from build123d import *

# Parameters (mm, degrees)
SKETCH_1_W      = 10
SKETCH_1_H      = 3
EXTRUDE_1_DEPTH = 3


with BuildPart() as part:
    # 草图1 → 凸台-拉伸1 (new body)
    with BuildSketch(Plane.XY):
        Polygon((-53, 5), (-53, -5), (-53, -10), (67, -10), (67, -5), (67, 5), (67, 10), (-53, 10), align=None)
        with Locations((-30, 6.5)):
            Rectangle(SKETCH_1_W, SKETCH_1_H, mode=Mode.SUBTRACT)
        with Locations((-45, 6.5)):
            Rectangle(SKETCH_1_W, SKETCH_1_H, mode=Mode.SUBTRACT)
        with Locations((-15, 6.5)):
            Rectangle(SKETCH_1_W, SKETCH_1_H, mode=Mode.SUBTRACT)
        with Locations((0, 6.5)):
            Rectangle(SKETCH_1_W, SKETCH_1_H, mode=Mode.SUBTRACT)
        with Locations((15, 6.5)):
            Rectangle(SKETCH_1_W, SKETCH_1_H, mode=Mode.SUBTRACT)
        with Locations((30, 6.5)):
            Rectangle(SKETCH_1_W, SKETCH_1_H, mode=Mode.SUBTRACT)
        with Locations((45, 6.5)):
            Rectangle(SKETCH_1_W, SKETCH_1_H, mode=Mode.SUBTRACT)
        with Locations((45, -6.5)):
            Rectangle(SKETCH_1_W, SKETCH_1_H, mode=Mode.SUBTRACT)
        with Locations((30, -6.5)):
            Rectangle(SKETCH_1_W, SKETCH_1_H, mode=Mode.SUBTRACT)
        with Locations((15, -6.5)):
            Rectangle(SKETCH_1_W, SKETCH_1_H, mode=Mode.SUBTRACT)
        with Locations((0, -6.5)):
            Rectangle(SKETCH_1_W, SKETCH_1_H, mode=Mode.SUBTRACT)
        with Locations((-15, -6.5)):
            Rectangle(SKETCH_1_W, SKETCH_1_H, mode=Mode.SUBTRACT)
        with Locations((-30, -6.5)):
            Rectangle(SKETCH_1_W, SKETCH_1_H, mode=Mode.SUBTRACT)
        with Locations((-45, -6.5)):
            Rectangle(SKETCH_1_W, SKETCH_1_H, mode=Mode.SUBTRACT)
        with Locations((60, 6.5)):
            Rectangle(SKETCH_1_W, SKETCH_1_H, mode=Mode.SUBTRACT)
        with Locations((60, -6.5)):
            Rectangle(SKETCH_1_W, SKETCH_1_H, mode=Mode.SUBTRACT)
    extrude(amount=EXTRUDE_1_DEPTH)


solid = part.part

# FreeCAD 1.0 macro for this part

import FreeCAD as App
import Part
import Sketcher
from FreeCAD import Vector
Q = App.Units.Quantity

doc = App.newDocument("Part")
body = doc.addObject("PartDesign::Body", "Body")

# Sketch on XY plane
sketch1 = body.newObject("Sketcher::SketchObject", "Sketch")
sketch1.AttachmentSupport = (doc.getObject("XY_Plane"), [""])
sketch1.MapMode = "FlatFace"
sketch1.addGeometry(Part.LineSegment(Vector(-53, -10, 0), Vector(67, -10, 0)), False)
sketch1.addGeometry(Part.LineSegment(Vector(67, -10, 0), Vector(67, 10, 0)), False)
sketch1.addGeometry(Part.LineSegment(Vector(67, 10, 0), Vector(-53, 10, 0)), False)
sketch1.addGeometry(Part.LineSegment(Vector(-53, 10, 0), Vector(-53, -10, 0)), False)
sketch1.addGeometry(Part.LineSegment(Vector(-40, -8, 0), Vector(-50, -8, 0)), False)
sketch1.addGeometry(Part.LineSegment(Vector(-50, -8, 0), Vector(-50, -5, 0)), False)
sketch1.addGeometry(Part.LineSegment(Vector(-50, -5, 0), Vector(-40, -5, 0)), False)
sketch1.addGeometry(Part.LineSegment(Vector(-40, -5, 0), Vector(-40, -8, 0)), False)
sketch1.addGeometry(Part.LineSegment(Vector(-25, -8, 0), Vector(-35, -8, 0)), False)
sketch1.addGeometry(Part.LineSegment(Vector(-35, -8, 0), Vector(-35, -5, 0)), False)
sketch1.addGeometry(Part.LineSegment(Vector(-35, -5, 0), Vector(-25, -5, 0)), False)
sketch1.addGeometry(Part.LineSegment(Vector(-25, -5, 0), Vector(-25, -8, 0)), False)
sketch1.addGeometry(Part.LineSegment(Vector(-10, -8, 0), Vector(-20, -8, 0)), False)
sketch1.addGeometry(Part.LineSegment(Vector(-20, -8, 0), Vector(-20, -5, 0)), False)
sketch1.addGeometry(Part.LineSegment(Vector(-20, -5, 0), Vector(-10, -5, 0)), False)
sketch1.addGeometry(Part.LineSegment(Vector(-10, -5, 0), Vector(-10, -8, 0)), False)
sketch1.addGeometry(Part.LineSegment(Vector(5, -8, 0), Vector(-5, -8, 0)), False)
sketch1.addGeometry(Part.LineSegment(Vector(-5, -8, 0), Vector(-5, -5, 0)), False)
sketch1.addGeometry(Part.LineSegment(Vector(-5, -5, 0), Vector(5, -5, 0)), False)
sketch1.addGeometry(Part.LineSegment(Vector(5, -5, 0), Vector(5, -8, 0)), False)
sketch1.addGeometry(Part.LineSegment(Vector(20, -8, 0), Vector(10, -8, 0)), False)
sketch1.addGeometry(Part.LineSegment(Vector(10, -8, 0), Vector(10, -5, 0)), False)
sketch1.addGeometry(Part.LineSegment(Vector(10, -5, 0), Vector(20, -5, 0)), False)
sketch1.addGeometry(Part.LineSegment(Vector(20, -5, 0), Vector(20, -8, 0)), False)
sketch1.addGeometry(Part.LineSegment(Vector(35, -8, 0), Vector(25, -8, 0)), False)
sketch1.addGeometry(Part.LineSegment(Vector(25, -8, 0), Vector(25, -5, 0)), False)
sketch1.addGeometry(Part.LineSegment(Vector(25, -5, 0), Vector(35, -5, 0)), False)
sketch1.addGeometry(Part.LineSegment(Vector(35, -5, 0), Vector(35, -8, 0)), False)
sketch1.addGeometry(Part.LineSegment(Vector(50, -8, 0), Vector(40, -8, 0)), False)
sketch1.addGeometry(Part.LineSegment(Vector(40, -8, 0), Vector(40, -5, 0)), False)
sketch1.addGeometry(Part.LineSegment(Vector(40, -5, 0), Vector(50, -5, 0)), False)
sketch1.addGeometry(Part.LineSegment(Vector(50, -5, 0), Vector(50, -8, 0)), False)
sketch1.addGeometry(Part.LineSegment(Vector(65, -8, 0), Vector(55, -8, 0)), False)
sketch1.addGeometry(Part.LineSegment(Vector(55, -8, 0), Vector(55, -5, 0)), False)
sketch1.addGeometry(Part.LineSegment(Vector(55, -5, 0), Vector(65, -5, 0)), False)
sketch1.addGeometry(Part.LineSegment(Vector(65, -5, 0), Vector(65, -8, 0)), False)
sketch1.addGeometry(Part.LineSegment(Vector(-40, 5, 0), Vector(-50, 5, 0)), False)
sketch1.addGeometry(Part.LineSegment(Vector(-50, 5, 0), Vector(-50, 8, 0)), False)
sketch1.addGeometry(Part.LineSegment(Vector(-50, 8, 0), Vector(-40, 8, 0)), False)
sketch1.addGeometry(Part.LineSegment(Vector(-40, 8, 0), Vector(-40, 5, 0)), False)
sketch1.addGeometry(Part.LineSegment(Vector(-25, 5, 0), Vector(-35, 5, 0)), False)
sketch1.addGeometry(Part.LineSegment(Vector(-35, 5, 0), Vector(-35, 8, 0)), False)
sketch1.addGeometry(Part.LineSegment(Vector(-35, 8, 0), Vector(-25, 8, 0)), False)
sketch1.addGeometry(Part.LineSegment(Vector(-25, 8, 0), Vector(-25, 5, 0)), False)
sketch1.addGeometry(Part.LineSegment(Vector(-10, 5, 0), Vector(-20, 5, 0)), False)
sketch1.addGeometry(Part.LineSegment(Vector(-20, 5, 0), Vector(-20, 8, 0)), False)
sketch1.addGeometry(Part.LineSegment(Vector(-20, 8, 0), Vector(-10, 8, 0)), False)
sketch1.addGeometry(Part.LineSegment(Vector(-10, 8, 0), Vector(-10, 5, 0)), False)
sketch1.addGeometry(Part.LineSegment(Vector(5, 5, 0), Vector(-5, 5, 0)), False)
sketch1.addGeometry(Part.LineSegment(Vector(-5, 5, 0), Vector(-5, 8, 0)), False)
sketch1.addGeometry(Part.LineSegment(Vector(-5, 8, 0), Vector(5, 8, 0)), False)
sketch1.addGeometry(Part.LineSegment(Vector(5, 8, 0), Vector(5, 5, 0)), False)
sketch1.addGeometry(Part.LineSegment(Vector(20, 5, 0), Vector(10, 5, 0)), False)
sketch1.addGeometry(Part.LineSegment(Vector(10, 5, 0), Vector(10, 8, 0)), False)
sketch1.addGeometry(Part.LineSegment(Vector(10, 8, 0), Vector(20, 8, 0)), False)
sketch1.addGeometry(Part.LineSegment(Vector(20, 8, 0), Vector(20, 5, 0)), False)
sketch1.addGeometry(Part.LineSegment(Vector(35, 5, 0), Vector(25, 5, 0)), False)
sketch1.addGeometry(Part.LineSegment(Vector(25, 5, 0), Vector(25, 8, 0)), False)
sketch1.addGeometry(Part.LineSegment(Vector(25, 8, 0), Vector(35, 8, 0)), False)
sketch1.addGeometry(Part.LineSegment(Vector(35, 8, 0), Vector(35, 5, 0)), False)
sketch1.addGeometry(Part.LineSegment(Vector(50, 5, 0), Vector(40, 5, 0)), False)
sketch1.addGeometry(Part.LineSegment(Vector(40, 5, 0), Vector(40, 8, 0)), False)
sketch1.addGeometry(Part.LineSegment(Vector(40, 8, 0), Vector(50, 8, 0)), False)
sketch1.addGeometry(Part.LineSegment(Vector(50, 8, 0), Vector(50, 5, 0)), False)
sketch1.addGeometry(Part.LineSegment(Vector(65, 5, 0), Vector(55, 5, 0)), False)
sketch1.addGeometry(Part.LineSegment(Vector(55, 5, 0), Vector(55, 8, 0)), False)
sketch1.addGeometry(Part.LineSegment(Vector(55, 8, 0), Vector(65, 8, 0)), False)
sketch1.addGeometry(Part.LineSegment(Vector(65, 8, 0), Vector(65, 5, 0)), False)
sketch1.addConstraint(Sketcher.Constraint("Coincident", 0, 2, 1, 1))
sketch1.addConstraint(Sketcher.Constraint("Coincident", 1, 2, 2, 1))
sketch1.addConstraint(Sketcher.Constraint("Coincident", 2, 2, 3, 1))
sketch1.addConstraint(Sketcher.Constraint("Coincident", 3, 2, 0, 1))
sketch1.addConstraint(Sketcher.Constraint("Coincident", 4, 2, 5, 1))
sketch1.addConstraint(Sketcher.Constraint("Coincident", 5, 2, 6, 1))
sketch1.addConstraint(Sketcher.Constraint("Coincident", 6, 2, 7, 1))
sketch1.addConstraint(Sketcher.Constraint("Coincident", 7, 2, 4, 1))
sketch1.addConstraint(Sketcher.Constraint("Coincident", 8, 2, 9, 1))
sketch1.addConstraint(Sketcher.Constraint("Coincident", 9, 2, 10, 1))
sketch1.addConstraint(Sketcher.Constraint("Coincident", 10, 2, 11, 1))
sketch1.addConstraint(Sketcher.Constraint("Coincident", 11, 2, 8, 1))
sketch1.addConstraint(Sketcher.Constraint("Coincident", 12, 2, 13, 1))
sketch1.addConstraint(Sketcher.Constraint("Coincident", 13, 2, 14, 1))
sketch1.addConstraint(Sketcher.Constraint("Coincident", 14, 2, 15, 1))
sketch1.addConstraint(Sketcher.Constraint("Coincident", 15, 2, 12, 1))
sketch1.addConstraint(Sketcher.Constraint("Coincident", 16, 2, 17, 1))
sketch1.addConstraint(Sketcher.Constraint("Coincident", 17, 2, 18, 1))
sketch1.addConstraint(Sketcher.Constraint("Coincident", 18, 2, 19, 1))
sketch1.addConstraint(Sketcher.Constraint("Coincident", 19, 2, 16, 1))
sketch1.addConstraint(Sketcher.Constraint("Coincident", 20, 2, 21, 1))
sketch1.addConstraint(Sketcher.Constraint("Coincident", 21, 2, 22, 1))
sketch1.addConstraint(Sketcher.Constraint("Coincident", 22, 2, 23, 1))
sketch1.addConstraint(Sketcher.Constraint("Coincident", 23, 2, 20, 1))
sketch1.addConstraint(Sketcher.Constraint("Coincident", 24, 2, 25, 1))
sketch1.addConstraint(Sketcher.Constraint("Coincident", 25, 2, 26, 1))
sketch1.addConstraint(Sketcher.Constraint("Coincident", 26, 2, 27, 1))
sketch1.addConstraint(Sketcher.Constraint("Coincident", 27, 2, 24, 1))
sketch1.addConstraint(Sketcher.Constraint("Coincident", 28, 2, 29, 1))
sketch1.addConstraint(Sketcher.Constraint("Coincident", 29, 2, 30, 1))
sketch1.addConstraint(Sketcher.Constraint("Coincident", 30, 2, 31, 1))
sketch1.addConstraint(Sketcher.Constraint("Coincident", 31, 2, 28, 1))
sketch1.addConstraint(Sketcher.Constraint("Coincident", 32, 2, 33, 1))
sketch1.addConstraint(Sketcher.Constraint("Coincident", 33, 2, 34, 1))
sketch1.addConstraint(Sketcher.Constraint("Coincident", 34, 2, 35, 1))
sketch1.addConstraint(Sketcher.Constraint("Coincident", 35, 2, 32, 1))
sketch1.addConstraint(Sketcher.Constraint("Coincident", 36, 2, 37, 1))
sketch1.addConstraint(Sketcher.Constraint("Coincident", 37, 2, 38, 1))
sketch1.addConstraint(Sketcher.Constraint("Coincident", 38, 2, 39, 1))
sketch1.addConstraint(Sketcher.Constraint("Coincident", 39, 2, 36, 1))
sketch1.addConstraint(Sketcher.Constraint("Coincident", 40, 2, 41, 1))
sketch1.addConstraint(Sketcher.Constraint("Coincident", 41, 2, 42, 1))
sketch1.addConstraint(Sketcher.Constraint("Coincident", 42, 2, 43, 1))
sketch1.addConstraint(Sketcher.Constraint("Coincident", 43, 2, 40, 1))
sketch1.addConstraint(Sketcher.Constraint("Coincident", 44, 2, 45, 1))
sketch1.addConstraint(Sketcher.Constraint("Coincident", 45, 2, 46, 1))
sketch1.addConstraint(Sketcher.Constraint("Coincident", 46, 2, 47, 1))
sketch1.addConstraint(Sketcher.Constraint("Coincident", 47, 2, 44, 1))
sketch1.addConstraint(Sketcher.Constraint("Coincident", 48, 2, 49, 1))
sketch1.addConstraint(Sketcher.Constraint("Coincident", 49, 2, 50, 1))
sketch1.addConstraint(Sketcher.Constraint("Coincident", 50, 2, 51, 1))
sketch1.addConstraint(Sketcher.Constraint("Coincident", 51, 2, 48, 1))
sketch1.addConstraint(Sketcher.Constraint("Coincident", 52, 2, 53, 1))
sketch1.addConstraint(Sketcher.Constraint("Coincident", 53, 2, 54, 1))
sketch1.addConstraint(Sketcher.Constraint("Coincident", 54, 2, 55, 1))
sketch1.addConstraint(Sketcher.Constraint("Coincident", 55, 2, 52, 1))
sketch1.addConstraint(Sketcher.Constraint("Coincident", 56, 2, 57, 1))
sketch1.addConstraint(Sketcher.Constraint("Coincident", 57, 2, 58, 1))
sketch1.addConstraint(Sketcher.Constraint("Coincident", 58, 2, 59, 1))
sketch1.addConstraint(Sketcher.Constraint("Coincident", 59, 2, 56, 1))
sketch1.addConstraint(Sketcher.Constraint("Coincident", 60, 2, 61, 1))
sketch1.addConstraint(Sketcher.Constraint("Coincident", 61, 2, 62, 1))
sketch1.addConstraint(Sketcher.Constraint("Coincident", 62, 2, 63, 1))
sketch1.addConstraint(Sketcher.Constraint("Coincident", 63, 2, 60, 1))
sketch1.addConstraint(Sketcher.Constraint("Coincident", 64, 2, 65, 1))
sketch1.addConstraint(Sketcher.Constraint("Coincident", 65, 2, 66, 1))
sketch1.addConstraint(Sketcher.Constraint("Coincident", 66, 2, 67, 1))
sketch1.addConstraint(Sketcher.Constraint("Coincident", 67, 2, 64, 1))
sketch1.addConstraint(Sketcher.Constraint("Horizontal", 0))
sketch1.addConstraint(Sketcher.Constraint("Vertical", 1))
sketch1.addConstraint(Sketcher.Constraint("Horizontal", 2))
sketch1.addConstraint(Sketcher.Constraint("Vertical", 3))
sketch1.addConstraint(Sketcher.Constraint("Horizontal", 4))
sketch1.addConstraint(Sketcher.Constraint("Vertical", 5))
sketch1.addConstraint(Sketcher.Constraint("Horizontal", 6))
sketch1.addConstraint(Sketcher.Constraint("Vertical", 7))
sketch1.addConstraint(Sketcher.Constraint("Horizontal", 8))
sketch1.addConstraint(Sketcher.Constraint("Vertical", 9))
sketch1.addConstraint(Sketcher.Constraint("Horizontal", 10))
sketch1.addConstraint(Sketcher.Constraint("Vertical", 11))
sketch1.addConstraint(Sketcher.Constraint("Horizontal", 12))
sketch1.addConstraint(Sketcher.Constraint("Vertical", 13))
sketch1.addConstraint(Sketcher.Constraint("Horizontal", 14))
sketch1.addConstraint(Sketcher.Constraint("Vertical", 15))
sketch1.addConstraint(Sketcher.Constraint("Horizontal", 16))
sketch1.addConstraint(Sketcher.Constraint("Vertical", 17))
sketch1.addConstraint(Sketcher.Constraint("Horizontal", 18))
sketch1.addConstraint(Sketcher.Constraint("Vertical", 19))
sketch1.addConstraint(Sketcher.Constraint("Horizontal", 20))
sketch1.addConstraint(Sketcher.Constraint("Vertical", 21))
sketch1.addConstraint(Sketcher.Constraint("Horizontal", 22))
sketch1.addConstraint(Sketcher.Constraint("Vertical", 23))
sketch1.addConstraint(Sketcher.Constraint("Horizontal", 24))
sketch1.addConstraint(Sketcher.Constraint("Vertical", 25))
sketch1.addConstraint(Sketcher.Constraint("Horizontal", 26))
sketch1.addConstraint(Sketcher.Constraint("Vertical", 27))
sketch1.addConstraint(Sketcher.Constraint("Horizontal", 28))
sketch1.addConstraint(Sketcher.Constraint("Vertical", 29))
sketch1.addConstraint(Sketcher.Constraint("Horizontal", 30))
sketch1.addConstraint(Sketcher.Constraint("Vertical", 31))
sketch1.addConstraint(Sketcher.Constraint("Horizontal", 32))
sketch1.addConstraint(Sketcher.Constraint("Vertical", 33))
sketch1.addConstraint(Sketcher.Constraint("Horizontal", 34))
sketch1.addConstraint(Sketcher.Constraint("Vertical", 35))
sketch1.addConstraint(Sketcher.Constraint("Horizontal", 36))
sketch1.addConstraint(Sketcher.Constraint("Vertical", 37))
sketch1.addConstraint(Sketcher.Constraint("Horizontal", 38))
sketch1.addConstraint(Sketcher.Constraint("Vertical", 39))
sketch1.addConstraint(Sketcher.Constraint("Horizontal", 40))
sketch1.addConstraint(Sketcher.Constraint("Vertical", 41))
sketch1.addConstraint(Sketcher.Constraint("Horizontal", 42))
sketch1.addConstraint(Sketcher.Constraint("Vertical", 43))
sketch1.addConstraint(Sketcher.Constraint("Horizontal", 44))
sketch1.addConstraint(Sketcher.Constraint("Vertical", 45))
sketch1.addConstraint(Sketcher.Constraint("Horizontal", 46))
sketch1.addConstraint(Sketcher.Constraint("Vertical", 47))
sketch1.addConstraint(Sketcher.Constraint("Horizontal", 48))
sketch1.addConstraint(Sketcher.Constraint("Vertical", 49))
sketch1.addConstraint(Sketcher.Constraint("Horizontal", 50))
sketch1.addConstraint(Sketcher.Constraint("Vertical", 51))
sketch1.addConstraint(Sketcher.Constraint("Horizontal", 52))
sketch1.addConstraint(Sketcher.Constraint("Vertical", 53))
sketch1.addConstraint(Sketcher.Constraint("Horizontal", 54))
sketch1.addConstraint(Sketcher.Constraint("Vertical", 55))
sketch1.addConstraint(Sketcher.Constraint("Horizontal", 56))
sketch1.addConstraint(Sketcher.Constraint("Vertical", 57))
sketch1.addConstraint(Sketcher.Constraint("Horizontal", 58))
sketch1.addConstraint(Sketcher.Constraint("Vertical", 59))
sketch1.addConstraint(Sketcher.Constraint("Horizontal", 60))
sketch1.addConstraint(Sketcher.Constraint("Vertical", 61))
sketch1.addConstraint(Sketcher.Constraint("Horizontal", 62))
sketch1.addConstraint(Sketcher.Constraint("Vertical", 63))
sketch1.addConstraint(Sketcher.Constraint("Horizontal", 64))
sketch1.addConstraint(Sketcher.Constraint("Vertical", 65))
sketch1.addConstraint(Sketcher.Constraint("Horizontal", 66))
sketch1.addConstraint(Sketcher.Constraint("Vertical", 67))
sketch1.addConstraint(Sketcher.Constraint("Symmetric", 30, 2, 36, 2, -1, 1))
sketch1.addConstraint(Sketcher.Constraint("Symmetric", 28, 2, 38, 2, -1, 1))
sketch1.addConstraint(Sketcher.Constraint("Symmetric", 26, 2, 40, 2, -1, 1))
sketch1.addConstraint(Sketcher.Constraint("Symmetric", 24, 2, 42, 2, -1, 1))
sketch1.addConstraint(Sketcher.Constraint("Symmetric", 22, 2, 44, 2, -1, 1))
sketch1.addConstraint(Sketcher.Constraint("Symmetric", 20, 2, 46, 2, -1, 1))
sketch1.addConstraint(Sketcher.Constraint("Symmetric", 18, 2, 48, 2, -1, 1))
sketch1.addConstraint(Sketcher.Constraint("Symmetric", 16, 2, 50, 2, -1, 1))
sketch1.addConstraint(Sketcher.Constraint("Symmetric", 14, 2, 52, 2, -1, 1))
sketch1.addConstraint(Sketcher.Constraint("Symmetric", 12, 2, 54, 2, -1, 1))
sketch1.addConstraint(Sketcher.Constraint("Symmetric", 10, 2, 56, 2, -1, 1))
sketch1.addConstraint(Sketcher.Constraint("Symmetric", 8, 2, 58, 2, -1, 1))
sketch1.addConstraint(Sketcher.Constraint("Symmetric", 6, 2, 60, 2, -1, 1))
sketch1.addConstraint(Sketcher.Constraint("Symmetric", 4, 2, 62, 2, -1, 1))
sketch1.addConstraint(Sketcher.Constraint("Symmetric", 15, 2, 20, 2, -2))
sketch1.addConstraint(Sketcher.Constraint("Symmetric", 13, 2, 22, 2, -2))
sketch1.addConstraint(Sketcher.Constraint("Symmetric", 11, 2, 24, 2, -2))
sketch1.addConstraint(Sketcher.Constraint("Symmetric", 9, 2, 26, 2, -2))
sketch1.addConstraint(Sketcher.Constraint("Symmetric", 7, 2, 28, 2, -2))
sketch1.addConstraint(Sketcher.Constraint("Symmetric", 5, 2, 30, 2, -2))
sketch1.addConstraint(Sketcher.Constraint("Symmetric", 33, 2, 64, 2, -1))
sketch1.addConstraint(Sketcher.Constraint("Symmetric", 35, 2, 66, 2, -1))
sketch1.addConstraint(Sketcher.Constraint("Horizontal", 7, 2, 8, 2))
sketch1.addConstraint(Sketcher.Constraint("Horizontal", 6, 2, 9, 2))
sketch1.addConstraint(Sketcher.Constraint("Horizontal", 11, 2, 12, 2))
sketch1.addConstraint(Sketcher.Constraint("Horizontal", 10, 2, 13, 2))
sketch1.addConstraint(Sketcher.Constraint("Horizontal", 15, 2, 16, 2))
sketch1.addConstraint(Sketcher.Constraint("Horizontal", 14, 2, 17, 2))
sketch1.addConstraint(Sketcher.Constraint("Horizontal", 31, 2, 32, 2))
sketch1.addConstraint(Sketcher.Constraint("Horizontal", 30, 2, 33, 2))
sketch1.addConstraint(Sketcher.Constraint("Vertical", 17, 2, 48, 2))
sketch1.addConstraint(Sketcher.Constraint("Equal", 6, 8))
sketch1.addConstraint(Sketcher.Constraint("Equal", 10, 12))
sketch1.addConstraint(Sketcher.Constraint("Equal", 14, 16))
sketch1.addConstraint(Sketcher.Constraint("Equal", 30, 32))
sketch1.addConstraint(Sketcher.Constraint("DistanceX", 0, 1, 0, 2, Q("120 mm")))
sketch1.addConstraint(Sketcher.Constraint("DistanceX", 4, 2, 4, 1, Q("10 mm")))
sketch1.addConstraint(Sketcher.Constraint("DistanceY", 1, 1, 1, 2, Q("20 mm")))
sketch1.addConstraint(Sketcher.Constraint("DistanceY", 5, 1, 5, 2, Q("3 mm")))
sketch1.addConstraint(Sketcher.Constraint("DistanceX", -1, 1, 0, 2, Q("67 mm")))
sketch1.addConstraint(Sketcher.Constraint("DistanceY", 0, 2, -1, 1, Q("10 mm")))
sketch1.addConstraint(Sketcher.Constraint("DistanceX", 4, 2, -1, 1, Q("50 mm")))
sketch1.addConstraint(Sketcher.Constraint("DistanceY", 4, 2, -1, 1, Q("8 mm")))
sketch1.addConstraint(Sketcher.Constraint("DistanceX", 8, 2, -1, 1, Q("35 mm")))
sketch1.addConstraint(Sketcher.Constraint("DistanceX", 12, 2, -1, 1, Q("20 mm")))
sketch1.addConstraint(Sketcher.Constraint("DistanceX", -1, 1, 32, 2, Q("55 mm")))
pad1 = body.newObject("PartDesign::Pad", "Pad")
pad1.Profile = sketch1
pad1.Length = 3

doc.recompute()
